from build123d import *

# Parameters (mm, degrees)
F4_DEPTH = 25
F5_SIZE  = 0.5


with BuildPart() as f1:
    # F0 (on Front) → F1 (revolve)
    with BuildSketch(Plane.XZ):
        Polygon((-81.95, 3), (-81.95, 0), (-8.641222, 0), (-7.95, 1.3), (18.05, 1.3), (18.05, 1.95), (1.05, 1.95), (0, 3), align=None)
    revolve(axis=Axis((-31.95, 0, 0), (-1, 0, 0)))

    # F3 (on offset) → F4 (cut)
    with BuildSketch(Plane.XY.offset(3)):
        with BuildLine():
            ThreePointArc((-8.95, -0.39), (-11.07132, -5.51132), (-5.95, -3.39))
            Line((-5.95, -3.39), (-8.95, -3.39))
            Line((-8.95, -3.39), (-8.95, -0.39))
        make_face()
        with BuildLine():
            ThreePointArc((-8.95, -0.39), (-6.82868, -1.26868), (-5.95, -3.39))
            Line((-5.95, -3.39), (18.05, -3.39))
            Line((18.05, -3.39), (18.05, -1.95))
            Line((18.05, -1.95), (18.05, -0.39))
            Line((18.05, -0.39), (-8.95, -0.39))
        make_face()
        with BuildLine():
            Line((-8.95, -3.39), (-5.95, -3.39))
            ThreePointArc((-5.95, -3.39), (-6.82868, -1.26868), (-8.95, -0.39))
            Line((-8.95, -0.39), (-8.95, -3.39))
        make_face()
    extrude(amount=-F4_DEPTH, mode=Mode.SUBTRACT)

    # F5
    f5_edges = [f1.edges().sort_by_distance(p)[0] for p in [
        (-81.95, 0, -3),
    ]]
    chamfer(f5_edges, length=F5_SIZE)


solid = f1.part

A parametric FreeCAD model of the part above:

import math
import FreeCAD as App
import Part
import Sketcher

V = App.Vector
Q = App.Units.Quantity


def edges_at(feature, points):
    """Names of the edges that pass closest to the given points."""
    edges = feature.Shape.Edges
    near = lambda p: min(range(len(edges)), key=lambda i: edges[i].distToShape(Part.Vertex(*p))[0])
    return sorted({f"Edge{near(p) + 1}" for p in points})

doc = App.newDocument("Part")
params = doc.addObject("Spreadsheet::Sheet", "Params")
for row, (alias, value) in enumerate([
    ("sketch1_width", "26 mm"),
    ("sketch1_width2", "17 mm"),
    ("sketch1_height", "3 mm"),
    ("sketch1_width3", "81.95 mm"),
    ("sketch1_height2", "0.65 mm"),
    ("revolution_angle", "360 deg"),
    ("sketch2_radius", "3 mm"),
    ("sketch2_width", "24 mm"),
    ("sketch2_height", "3 mm"),
    ("pocket1_length", "25 mm"),
    ("chamfer_size", "0.5 mm"),
], start=1):
    params.set(f"A{row}", alias)
    params.set(f"B{row}", "=" + value)
    params.setAlias(f"B{row}", alias)

body = doc.addObject("PartDesign::Body", "Body")

sketch1 = body.newObject("Sketcher::SketchObject", "Sketch")
sketch1.AttachmentSupport = (doc.getObject("XZ_Plane"), [""])
sketch1.MapMode = "FlatFace"
sketch1.addGeometry(Part.LineSegment(V(-81.95, 3, 0), V(-81.95, 0, 0)), False)
sketch1.addGeometry(Part.LineSegment(V(-81.95, 0, 0), V(-8.641222, 0, 0)), False)
sketch1.addGeometry(Part.LineSegment(V(-8.641222, 0, 0), V(-7.95, 1.3, 0)), False)
sketch1.addGeometry(Part.LineSegment(V(-7.95, 1.3, 0), V(18.05, 1.3, 0)), False)
sketch1.addGeometry(Part.LineSegment(V(18.05, 1.3, 0), V(18.05, 1.95, 0)), False)
sketch1.addGeometry(Part.LineSegment(V(18.05, 1.95, 0), V(1.05, 1.95, 0)), False)
sketch1.addGeometry(Part.LineSegment(V(1.05, 1.95, 0), V(0, 3, 0)), False)
sketch1.addGeometry(Part.LineSegment(V(0, 3, 0), V(-81.95, 3, 0)), False)
sketch1.addConstraint(Sketcher.Constraint("Coincident", 0, 2, 1, 1))
sketch1.addConstraint(Sketcher.Constraint("Coincident", 1, 2, 2, 1))
sketch1.addConstraint(Sketcher.Constraint("Coincident", 2, 2, 3, 1))
sketch1.addConstraint(Sketcher.Constraint("Coincident", 3, 2, 4, 1))
sketch1.addConstraint(Sketcher.Constraint("Coincident", 4, 2, 5, 1))
sketch1.addConstraint(Sketcher.Constraint("Coincident", 5, 2, 6, 1))
sketch1.addConstraint(Sketcher.Constraint("Coincident", 6, 2, 7, 1))
sketch1.addConstraint(Sketcher.Constraint("Coincident", 7, 2, 0, 1))
sketch1.addConstraint(Sketcher.Constraint("Vertical", 0))
sketch1.addConstraint(Sketcher.Constraint("Horizontal", 1))
sketch1.addConstraint(Sketcher.Constraint("Horizontal", 3))
sketch1.addConstraint(Sketcher.Constraint("Vertical", 4))
sketch1.addConstraint(Sketcher.Constraint("Horizontal", 5))
sketch1.addConstraint(Sketcher.Constraint("Horizontal", 7))
sketch1.addConstraint(Sketcher.Constraint("PointOnObject", 0, 2, -1))
sketch1.addConstraint(Sketcher.Constraint("PointOnObject", 6, 2, -2))
sketch1.addConstraint(Sketcher.Constraint("DistanceX", 3, 1, 3, 2, Q("26 mm")))
sketch1.addConstraint(Sketcher.Constraint("DistanceX", 5, 2, 5, 1, Q("17 mm")))
sketch1.addConstraint(Sketcher.Constraint("DistanceY", 0, 2, 0, 1, Q("3 mm")))
sketch1.addConstraint(Sketcher.Constraint("Angle", 2, Q("62.000009 deg")))
sketch1.addConstraint(Sketcher.Constraint("Angle", 6, Q("135 deg")))
sketch1.addConstraint(Sketcher.Constraint("DistanceX", 0, 2, 2, 2, Q("74 mm")))
sketch1.addConstraint(Sketcher.Constraint("DistanceX", 7, 2, 7, 1, Q("81.95 mm")))
sketch1.addConstraint(Sketcher.Constraint("DistanceY", 4, 1, 4, 2, Q("0.65 mm")))
sketch1.setExpression("Constraints[16]", "Params.sketch1_width")
sketch1.setExpression("Constraints[17]", "Params.sketch1_width2")
sketch1.setExpression("Constraints[18]", "Params.sketch1_height")
sketch1.setExpression("Constraints[22]", "Params.sketch1_width3")
sketch1.setExpression("Constraints[23]", "Params.sketch1_height2")
revolution = body.newObject("PartDesign::Revolution", "Revolution")
revolution.Profile = sketch1
revolution.ReferenceAxis = (sketch1, ["H_Axis"])
revolution.setExpression("Angle", "Params.revolution_angle")

sketch2 = body.newObject("Sketcher::SketchObject", "Sketch001")
sketch2.AttachmentSupport = (doc.getObject("XY_Plane"), [""])
sketch2.MapMode = "FlatFace"
sketch2.AttachmentOffset = App.Placement(V(0, 0, 3), App.Rotation())
sketch2.addGeometry(Part.ArcOfCircle(Part.Circle(V(-8.95, -3.39, 0), V(0, 0, 1), 3), math.radians(90.000004), math.radians(359.999996)), False)
sketch2.addGeometry(Part.LineSegment(V(-5.95, -3.39, 0), V(18.05, -3.39, 0)), False)
sketch2.addGeometry(Part.LineSegment(V(18.05, -3.39, 0), V(18.05, -0.39, 0)), False)
sketch2.addGeometry(Part.LineSegment(V(18.05, -0.39, 0), V(-8.95, -0.39, 0)), False)
sketch2.addConstraint(Sketcher.Constraint("Coincident", 0, 2, 1, 1))
sketch2.addConstraint(Sketcher.Constraint("Coincident", 1, 2, 2, 1))
sketch2.addConstraint(Sketcher.Constraint("Coincident", 2, 2, 3, 1))
sketch2.addConstraint(Sketcher.Constraint("Tangent", 3, 2, 0, 1))
sketch2.addConstraint(Sketcher.Constraint("Horizontal", 1))
sketch2.addConstraint(Sketcher.Constraint("Vertical", 2))
sketch2.addConstraint(Sketcher.Constraint("Horizontal", 3))
sketch2.addConstraint(Sketcher.Constraint("Radius", 0, Q("3 mm")))
sketch2.addConstraint(Sketcher.Constraint("DistanceX", 1, 1, 1, 2, Q("24 mm")))
sketch2.addConstraint(Sketcher.Constraint("DistanceY", 2, 1, 2, 2, Q("3 mm")))
sketch2.addConstraint(Sketcher.Constraint("DistanceX", 0, 3, -1, 1, Q("8.95 mm")))
sketch2.addConstraint(Sketcher.Constraint("DistanceY", 0, 3, -1, 1, Q("3.39 mm")))
sketch2.setExpression("Constraints[7]", "Params.sketch2_radius")
sketch2.setExpression("Constraints[8]", "Params.sketch2_width")
sketch2.setExpression("Constraints[9]", "Params.sketch2_height")
pocket1 = body.newObject("PartDesign::Pocket", "Pocket")
pocket1.Profile = sketch2
pocket1.setExpression("Length", "Params.pocket1_length")
doc.recompute()

chamfer = body.newObject("PartDesign::Chamfer", "Chamfer")
chamfer.Base = (pocket1, edges_at(pocket1, [(-81.95, 0, -3)]))
chamfer.setExpression("Size", "Params.chamfer_size")

doc.recompute()
